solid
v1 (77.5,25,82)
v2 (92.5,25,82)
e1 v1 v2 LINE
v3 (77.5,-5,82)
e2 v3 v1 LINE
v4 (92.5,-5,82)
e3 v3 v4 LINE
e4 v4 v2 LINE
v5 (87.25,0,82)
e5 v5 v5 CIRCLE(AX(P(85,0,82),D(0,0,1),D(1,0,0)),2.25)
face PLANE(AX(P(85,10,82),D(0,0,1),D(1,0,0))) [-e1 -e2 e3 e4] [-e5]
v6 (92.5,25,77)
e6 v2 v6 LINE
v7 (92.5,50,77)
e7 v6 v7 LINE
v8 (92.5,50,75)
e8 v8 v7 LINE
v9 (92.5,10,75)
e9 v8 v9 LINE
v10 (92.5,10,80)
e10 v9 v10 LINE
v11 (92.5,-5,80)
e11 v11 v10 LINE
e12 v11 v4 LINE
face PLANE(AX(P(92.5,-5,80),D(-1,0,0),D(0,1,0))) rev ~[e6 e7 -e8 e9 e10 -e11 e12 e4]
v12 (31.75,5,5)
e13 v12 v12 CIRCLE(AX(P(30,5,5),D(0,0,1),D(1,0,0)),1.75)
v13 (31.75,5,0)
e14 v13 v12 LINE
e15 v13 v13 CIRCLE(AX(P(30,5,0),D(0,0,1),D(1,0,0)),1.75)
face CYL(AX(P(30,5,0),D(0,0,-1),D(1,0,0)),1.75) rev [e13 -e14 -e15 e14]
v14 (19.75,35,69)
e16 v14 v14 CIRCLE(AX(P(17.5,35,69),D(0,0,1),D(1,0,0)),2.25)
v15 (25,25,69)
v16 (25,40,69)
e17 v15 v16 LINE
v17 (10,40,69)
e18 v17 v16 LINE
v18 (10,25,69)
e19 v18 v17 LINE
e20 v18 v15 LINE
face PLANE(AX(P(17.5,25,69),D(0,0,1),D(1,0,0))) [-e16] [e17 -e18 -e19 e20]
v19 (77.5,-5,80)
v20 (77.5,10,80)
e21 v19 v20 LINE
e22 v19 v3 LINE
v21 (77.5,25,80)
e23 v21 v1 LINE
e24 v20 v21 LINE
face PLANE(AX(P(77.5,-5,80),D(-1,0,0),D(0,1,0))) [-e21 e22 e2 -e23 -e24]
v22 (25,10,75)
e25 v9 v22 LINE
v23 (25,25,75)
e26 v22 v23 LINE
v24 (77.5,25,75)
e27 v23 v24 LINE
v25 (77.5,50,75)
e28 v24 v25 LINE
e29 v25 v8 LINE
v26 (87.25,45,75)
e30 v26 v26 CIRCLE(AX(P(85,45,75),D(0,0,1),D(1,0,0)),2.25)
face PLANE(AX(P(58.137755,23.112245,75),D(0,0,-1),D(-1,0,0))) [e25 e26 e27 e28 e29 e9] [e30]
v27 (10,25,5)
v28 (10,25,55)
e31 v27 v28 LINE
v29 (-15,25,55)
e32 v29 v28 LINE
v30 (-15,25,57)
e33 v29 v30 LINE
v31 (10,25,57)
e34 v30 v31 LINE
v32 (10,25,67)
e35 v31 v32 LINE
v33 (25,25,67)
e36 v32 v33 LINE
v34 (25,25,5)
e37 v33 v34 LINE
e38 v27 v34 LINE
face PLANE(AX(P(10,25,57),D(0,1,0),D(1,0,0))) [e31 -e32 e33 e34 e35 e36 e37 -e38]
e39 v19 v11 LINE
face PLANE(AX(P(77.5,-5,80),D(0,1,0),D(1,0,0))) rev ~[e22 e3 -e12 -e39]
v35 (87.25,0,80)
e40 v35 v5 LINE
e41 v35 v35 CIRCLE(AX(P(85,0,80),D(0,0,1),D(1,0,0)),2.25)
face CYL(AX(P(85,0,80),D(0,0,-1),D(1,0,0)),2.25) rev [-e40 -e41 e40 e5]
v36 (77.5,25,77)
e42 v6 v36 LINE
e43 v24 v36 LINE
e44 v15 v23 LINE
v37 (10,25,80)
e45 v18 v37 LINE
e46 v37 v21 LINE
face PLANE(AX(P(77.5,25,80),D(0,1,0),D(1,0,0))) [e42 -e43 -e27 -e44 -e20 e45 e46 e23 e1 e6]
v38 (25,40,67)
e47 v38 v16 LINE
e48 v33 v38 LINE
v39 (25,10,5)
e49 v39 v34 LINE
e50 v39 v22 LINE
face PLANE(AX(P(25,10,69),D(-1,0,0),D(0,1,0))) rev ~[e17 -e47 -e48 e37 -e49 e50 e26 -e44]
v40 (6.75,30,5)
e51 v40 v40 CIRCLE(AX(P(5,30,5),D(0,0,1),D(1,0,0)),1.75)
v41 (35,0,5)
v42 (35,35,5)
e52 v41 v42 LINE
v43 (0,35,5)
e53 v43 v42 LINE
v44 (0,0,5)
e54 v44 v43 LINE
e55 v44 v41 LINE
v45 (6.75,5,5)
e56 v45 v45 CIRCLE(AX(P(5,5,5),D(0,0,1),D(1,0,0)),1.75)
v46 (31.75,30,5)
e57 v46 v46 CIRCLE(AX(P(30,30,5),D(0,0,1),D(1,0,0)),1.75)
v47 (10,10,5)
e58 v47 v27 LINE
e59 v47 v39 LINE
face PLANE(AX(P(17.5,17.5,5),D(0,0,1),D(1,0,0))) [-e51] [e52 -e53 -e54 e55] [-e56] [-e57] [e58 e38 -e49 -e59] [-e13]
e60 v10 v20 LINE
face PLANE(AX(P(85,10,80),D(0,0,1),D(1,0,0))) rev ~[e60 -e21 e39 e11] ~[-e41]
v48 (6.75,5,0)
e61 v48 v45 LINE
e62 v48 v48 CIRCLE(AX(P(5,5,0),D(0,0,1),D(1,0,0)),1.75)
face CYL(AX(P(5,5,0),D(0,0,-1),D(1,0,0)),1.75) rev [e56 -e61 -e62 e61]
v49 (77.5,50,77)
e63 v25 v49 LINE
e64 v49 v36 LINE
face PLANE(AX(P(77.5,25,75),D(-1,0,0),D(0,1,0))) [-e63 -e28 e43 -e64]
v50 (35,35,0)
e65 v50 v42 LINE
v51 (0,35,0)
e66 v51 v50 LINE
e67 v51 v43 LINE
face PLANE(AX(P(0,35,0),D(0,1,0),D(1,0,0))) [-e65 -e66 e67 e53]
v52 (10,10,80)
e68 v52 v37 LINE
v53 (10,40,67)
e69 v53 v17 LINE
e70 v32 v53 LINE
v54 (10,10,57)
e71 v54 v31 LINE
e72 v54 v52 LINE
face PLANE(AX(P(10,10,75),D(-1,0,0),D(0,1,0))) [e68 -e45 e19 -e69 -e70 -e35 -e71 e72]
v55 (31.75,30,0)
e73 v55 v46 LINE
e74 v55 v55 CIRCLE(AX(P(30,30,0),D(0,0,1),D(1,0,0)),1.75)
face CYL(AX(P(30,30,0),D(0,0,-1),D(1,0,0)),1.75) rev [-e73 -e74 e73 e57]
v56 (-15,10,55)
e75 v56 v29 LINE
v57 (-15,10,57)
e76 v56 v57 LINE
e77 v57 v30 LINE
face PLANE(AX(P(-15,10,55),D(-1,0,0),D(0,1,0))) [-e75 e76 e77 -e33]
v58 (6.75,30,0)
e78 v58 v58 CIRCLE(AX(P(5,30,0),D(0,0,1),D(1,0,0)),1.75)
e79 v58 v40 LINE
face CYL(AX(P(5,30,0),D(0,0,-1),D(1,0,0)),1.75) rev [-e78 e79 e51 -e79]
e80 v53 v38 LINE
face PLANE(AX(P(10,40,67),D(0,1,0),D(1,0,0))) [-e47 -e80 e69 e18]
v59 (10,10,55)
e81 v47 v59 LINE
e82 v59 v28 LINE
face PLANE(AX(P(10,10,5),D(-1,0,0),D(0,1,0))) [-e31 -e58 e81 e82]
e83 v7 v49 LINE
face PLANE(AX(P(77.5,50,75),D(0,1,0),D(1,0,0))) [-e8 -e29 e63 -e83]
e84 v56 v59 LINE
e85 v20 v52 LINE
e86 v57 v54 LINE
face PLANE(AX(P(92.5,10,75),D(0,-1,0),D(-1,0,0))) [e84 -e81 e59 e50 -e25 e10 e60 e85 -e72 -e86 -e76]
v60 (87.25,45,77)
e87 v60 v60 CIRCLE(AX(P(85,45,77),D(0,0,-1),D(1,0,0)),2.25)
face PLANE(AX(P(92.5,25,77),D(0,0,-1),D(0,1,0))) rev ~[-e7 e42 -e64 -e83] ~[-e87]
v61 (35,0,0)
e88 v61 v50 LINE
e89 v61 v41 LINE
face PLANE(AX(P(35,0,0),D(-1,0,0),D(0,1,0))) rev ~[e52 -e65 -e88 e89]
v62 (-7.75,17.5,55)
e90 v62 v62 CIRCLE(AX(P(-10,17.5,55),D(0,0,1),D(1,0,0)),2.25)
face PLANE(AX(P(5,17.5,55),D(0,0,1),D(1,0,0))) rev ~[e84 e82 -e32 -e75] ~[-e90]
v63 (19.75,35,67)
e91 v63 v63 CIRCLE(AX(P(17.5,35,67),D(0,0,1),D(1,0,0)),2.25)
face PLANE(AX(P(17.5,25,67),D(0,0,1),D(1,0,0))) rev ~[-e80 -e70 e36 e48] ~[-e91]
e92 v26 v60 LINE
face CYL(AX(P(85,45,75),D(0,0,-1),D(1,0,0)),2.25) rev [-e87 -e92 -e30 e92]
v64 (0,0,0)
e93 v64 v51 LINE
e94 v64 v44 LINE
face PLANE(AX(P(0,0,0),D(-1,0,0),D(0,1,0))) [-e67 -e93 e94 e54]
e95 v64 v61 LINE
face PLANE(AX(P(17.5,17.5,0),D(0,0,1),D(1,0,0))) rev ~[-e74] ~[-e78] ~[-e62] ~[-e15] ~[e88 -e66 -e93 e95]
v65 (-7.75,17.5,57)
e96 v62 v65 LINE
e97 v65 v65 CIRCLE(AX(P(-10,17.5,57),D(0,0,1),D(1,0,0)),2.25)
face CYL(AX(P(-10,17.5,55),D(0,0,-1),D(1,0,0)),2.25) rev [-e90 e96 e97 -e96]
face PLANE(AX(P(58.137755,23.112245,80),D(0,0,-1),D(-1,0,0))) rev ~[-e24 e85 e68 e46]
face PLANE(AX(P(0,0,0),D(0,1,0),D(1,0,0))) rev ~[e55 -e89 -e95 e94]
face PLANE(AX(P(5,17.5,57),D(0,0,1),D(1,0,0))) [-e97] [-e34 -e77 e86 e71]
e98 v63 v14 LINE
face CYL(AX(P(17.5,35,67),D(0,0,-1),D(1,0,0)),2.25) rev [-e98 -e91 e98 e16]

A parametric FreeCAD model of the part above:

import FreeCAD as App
import Part
import Sketcher


def add_polygon(sketch, points):
    """Adds a closed chain of lines whose ends are joined by coincident constraints."""
    first, n = sketch.GeometryCount, len(points)
    for a, b in zip(points, points[1:] + points[:1]):
        sketch.addGeometry(Part.LineSegment(App.Vector(*a, 0), App.Vector(*b, 0)), False)
    for i in range(n):
        sketch.addConstraint(Sketcher.Constraint("Coincident", first + i, 2, first + (i + 1) % n, 1))

doc = App.newDocument("Part")
body = doc.addObject("PartDesign::Body", "Body")

# Sketch on XY plane
sketch1 = body.newObject("Sketcher::SketchObject", "Sketch")
sketch1.AttachmentSupport = (doc.getObject("XY_Plane"), [""])
sketch1.MapMode = "FlatFace"
add_polygon(sketch1, [(0, 35), (0, 0), (35, 0), (35, 35)])  # lines 0-3
sketch1.addGeometry(Part.Circle(App.Vector(5, 5, 0), App.Vector(0, 0, 1), 1.8), False)  # 4
sketch1.addGeometry(Part.Circle(App.Vector(30, 5, 0), App.Vector(0, 0, 1), 1.8), False)  # 5
sketch1.addGeometry(Part.Circle(App.Vector(5, 30, 0), App.Vector(0, 0, 1), 1.8), False)  # 6
sketch1.addGeometry(Part.Circle(App.Vector(30, 30, 0), App.Vector(0, 0, 1), 1.8), False)  # 7
sketch1.addConstraint(Sketcher.Constraint("Vertical", 0))
sketch1.addConstraint(Sketcher.Constraint("Horizontal", 1))
sketch1.addConstraint(Sketcher.Constraint("Vertical", 2))
sketch1.addConstraint(Sketcher.Constraint("Horizontal", 3))
sketch1.addConstraint(Sketcher.Constraint("Coincident", 0, 2, -1, 1))
sketch1.addConstraint(Sketcher.Constraint("Equal", 4, 5))
sketch1.addConstraint(Sketcher.Constraint("Equal", 5, 6))
sketch1.addConstraint(Sketcher.Constraint("Equal", 6, 7))
sketch1.addConstraint(Sketcher.Constraint("Horizontal", 4, 3, 5, 3))
sketch1.addConstraint(Sketcher.Constraint("Horizontal", 6, 3, 7, 3))
sketch1.addConstraint(Sketcher.Constraint("Vertical", 4, 3, 6, 3))
sketch1.addConstraint(Sketcher.Constraint("Vertical", 5, 3, 7, 3))
sketch1.addConstraint(Sketcher.Constraint("Equal", 3, 0))
sketch1.addConstraint(Sketcher.Constraint("Diameter", 4, 3.5))
sketch1.addConstraint(Sketcher.Constraint("DistanceX", 1, 1, 1, 2, 35.0))
sketch1.addConstraint(Sketcher.Constraint("DistanceX", -1, 1, 4, 3, 5.0))
sketch1.addConstraint(Sketcher.Constraint("DistanceY", -1, 1, 4, 3, 5.0))
sketch1.addConstraint(Sketcher.Constraint("DistanceX", -1, 1, 5, 3, 30.0))
sketch1.addConstraint(Sketcher.Constraint("DistanceY", -1, 1, 6, 3, 30.0))
pad1 = body.newObject("PartDesign::Pad", "Pad")
pad1.Profile = sketch1
pad1.Length = 5

# Sketch on XY plane
sketch2 = body.newObject("Sketcher::SketchObject", "Sketch001")
sketch2.AttachmentSupport = (doc.getObject("XY_Plane"), [""])
sketch2.MapMode = "FlatFace"
sketch2.AttachmentOffset = App.Placement(App.Vector(0, 0, 5), App.Rotation())
add_polygon(sketch2, [(10, 25), (10, 10), (25, 10), (25, 25)])  # lines 0-3
sketch2.addConstraint(Sketcher.Constraint("Vertical", 0))
sketch2.addConstraint(Sketcher.Constraint("Horizontal", 1))
sketch2.addConstraint(Sketcher.Constraint("Vertical", 2))
sketch2.addConstraint(Sketcher.Constraint("Horizontal", 3))
sketch2.addConstraint(Sketcher.Constraint("Equal", 3, 0))
sketch2.addConstraint(Sketcher.Constraint("DistanceX", 1, 1, 1, 2, 15.0))
sketch2.addConstraint(Sketcher.Constraint("DistanceX", -1, 1, 0, 2, 10.0))
sketch2.addConstraint(Sketcher.Constraint("DistanceY", -1, 1, 0, 2, 10.0))
pad2 = body.newObject("PartDesign::Pad", "Pad001")
pad2.Profile = sketch2
pad2.Length = 50

# Sketch on XY plane
sketch3 = body.newObject("Sketcher::SketchObject", "Sketch002")
sketch3.AttachmentSupport = (doc.getObject("XY_Plane"), [""])
sketch3.MapMode = "FlatFace"
sketch3.AttachmentOffset = App.Placement(App.Vector(0, 0, 55), App.Rotation())
add_polygon(sketch3, [(-15, 25), (-15, 10), (25, 10), (25, 25)])  # lines 0-3
sketch3.addGeometry(Part.Circle(App.Vector(-10, 17.5, 0), App.Vector(0, 0, 1), 2.2), False)  # 4
sketch3.addConstraint(Sketcher.Constraint("Vertical", 0))
sketch3.addConstraint(Sketcher.Constraint("Horizontal", 1))
sketch3.addConstraint(Sketcher.Constraint("Vertical", 2))
sketch3.addConstraint(Sketcher.Constraint("Horizontal", 3))
sketch3.addConstraint(Sketcher.Constraint("Diameter", 4, 4.5))
sketch3.addConstraint(Sketcher.Constraint("DistanceX", 1, 1, 1, 2, 40.0))
sketch3.addConstraint(Sketcher.Constraint("DistanceY", 0, 2, 0, 1, 15.0))
sketch3.addConstraint(Sketcher.Constraint("DistanceX", 4, 3, -1, 1, 10.0))
sketch3.addConstraint(Sketcher.Constraint("DistanceX", 0, 2, -1, 1, 15.0))
sketch3.addConstraint(Sketcher.Constraint("DistanceY", -1, 1, 0, 2, 10.0))
sketch3.addConstraint(Sketcher.Constraint("DistanceY", -1, 1, 4, 3, 17.5))
pad3 = body.newObject("PartDesign::Pad", "Pad002")
pad3.Profile = sketch3
pad3.Length = 2

# Sketch on XY plane
sketch4 = body.newObject("Sketcher::SketchObject", "Sketch003")
sketch4.AttachmentSupport = (doc.getObject("XY_Plane"), [""])
sketch4.MapMode = "FlatFace"
sketch4.AttachmentOffset = App.Placement(App.Vector(0, 0, 57), App.Rotation())
add_polygon(sketch4, [(10, 25), (10, 10), (25, 10), (25, 25)])  # lines 0-3
sketch4.addConstraint(Sketcher.Constraint("Vertical", 0))
sketch4.addConstraint(Sketcher.Constraint("Horizontal", 1))
sketch4.addConstraint(Sketcher.Constraint("Vertical", 2))
sketch4.addConstraint(Sketcher.Constraint("Horizontal", 3))
sketch4.addConstraint(Sketcher.Constraint("Equal", 3, 0))
sketch4.addConstraint(Sketcher.Constraint("DistanceX", 1, 1, 1, 2, 15.0))
sketch4.addConstraint(Sketcher.Constraint("DistanceX", -1, 1, 0, 2, 10.0))
sketch4.addConstraint(Sketcher.Constraint("DistanceY", -1, 1, 0, 2, 10.0))
pad4 = body.newObject("PartDesign::Pad", "Pad003")
pad4.Profile = sketch4
pad4.Length = 10

# Sketch on XY plane
sketch5 = body.newObject("Sketcher::SketchObject", "Sketch004")
sketch5.AttachmentSupport = (doc.getObject("XY_Plane"), [""])
sketch5.MapMode = "FlatFace"
sketch5.AttachmentOffset = App.Placement(App.Vector(0, 0, 67), App.Rotation())
add_polygon(sketch5, [(10, 40), (10, 10), (25, 10), (25, 40)])  # lines 0-3
sketch5.addGeometry(Part.Circle(App.Vector(17.5, 35, 0), App.Vector(0, 0, 1), 2.2), False)  # 4
sketch5.addConstraint(Sketcher.Constraint("Vertical", 0))
sketch5.addConstraint(Sketcher.Constraint("Horizontal", 1))
sketch5.addConstraint(Sketcher.Constraint("Vertical", 2))
sketch5.addConstraint(Sketcher.Constraint("Horizontal", 3))
sketch5.addConstraint(Sketcher.Constraint("Diameter", 4, 4.5))
sketch5.addConstraint(Sketcher.Constraint("DistanceX", 1, 1, 1, 2, 15.0))
sketch5.addConstraint(Sketcher.Constraint("DistanceY", 0, 2, 0, 1, 30.0))
sketch5.addConstraint(Sketcher.Constraint("DistanceY", -1, 1, 4, 3, 35.0))
sketch5.addConstraint(Sketcher.Constraint("DistanceX", -1, 1, 0, 2, 10.0))
sketch5.addConstraint(Sketcher.Constraint("DistanceY", -1, 1, 0, 2, 10.0))
sketch5.addConstraint(Sketcher.Constraint("DistanceX", -1, 1, 4, 3, 17.5))
pad5 = body.newObject("PartDesign::Pad", "Pad004")
pad5.Profile = sketch5
pad5.Length = 2

# Sketch on XY plane
sketch6 = body.newObject("Sketcher::SketchObject", "Sketch005")
sketch6.AttachmentSupport = (doc.getObject("XY_Plane"), [""])
sketch6.MapMode = "FlatFace"
sketch6.AttachmentOffset = App.Placement(App.Vector(0, 0, 69), App.Rotation())
add_polygon(sketch6, [(10, 25), (10, 10), (25, 10), (25, 25)])  # lines 0-3
sketch6.addConstraint(Sketcher.Constraint("Vertical", 0))
sketch6.addConstraint(Sketcher.Constraint("Horizontal", 1))
sketch6.addConstraint(Sketcher.Constraint("Vertical", 2))
sketch6.addConstraint(Sketcher.Constraint("Horizontal", 3))
sketch6.addConstraint(Sketcher.Constraint("Equal", 3, 0))
sketch6.addConstraint(Sketcher.Constraint("DistanceX", 1, 1, 1, 2, 15.0))
sketch6.addConstraint(Sketcher.Constraint("DistanceX", -1, 1, 0, 2, 10.0))
sketch6.addConstraint(Sketcher.Constraint("DistanceY", -1, 1, 0, 2, 10.0))
pad6 = body.newObject("PartDesign::Pad", "Pad005")
pad6.Profile = sketch6
pad6.Length = 6

# Sketch on XY plane
sketch7 = body.newObject("Sketcher::SketchObject", "Sketch006")
sketch7.AttachmentSupport = (doc.getObject("XY_Plane"), [""])
sketch7.MapMode = "FlatFace"
sketch7.AttachmentOffset = App.Placement(App.Vector(0, 0, 75), App.Rotation())
add_polygon(sketch7, [(77.5, 25), (10, 25), (10, 10), (92.5, 10), (92.5, 50), (77.5, 50)])  # lines 0-5
sketch7.addGeometry(Part.Circle(App.Vector(85, 45, 0), App.Vector(0, 0, 1), 2.2), False)  # 6
sketch7.addConstraint(Sketcher.Constraint("Horizontal", 0))
sketch7.addConstraint(Sketcher.Constraint("Vertical", 1))
sketch7.addConstraint(Sketcher.Constraint("Horizontal", 2))
sketch7.addConstraint(Sketcher.Constraint("Vertical", 3))
sketch7.addConstraint(Sketcher.Constraint("Horizontal", 4))
sketch7.addConstraint(Sketcher.Constraint("Vertical", 5))
sketch7.addConstraint(Sketcher.Constraint("Equal", 4, 1))
sketch7.addConstraint(Sketcher.Constraint("Diameter", 6, 4.5))
sketch7.addConstraint(Sketcher.Constraint("DistanceX", 4, 2, 4, 1, 15.0))
sketch7.addConstraint(Sketcher.Constraint("DistanceY", 3, 1, 3, 2, 40.0))
sketch7.addConstraint(Sketcher.Constraint("DistanceX", 0, 2, 0, 1, 67.5))
sketch7.addConstraint(Sketcher.Constraint("DistanceX", -1, 1, 6, 3, 85.0))
sketch7.addConstraint(Sketcher.Constraint("DistanceY", -1, 1, 6, 3, 45.0))
sketch7.addConstraint(Sketcher.Constraint("DistanceX", -1, 1, 0, 2, 10.0))
sketch7.addConstraint(Sketcher.Constraint("DistanceY", -1, 1, 0, 2, 25.0))
pad7 = body.newObject("PartDesign::Pad", "Pad006")
pad7.Profile = sketch7
pad7.Length = 5

# Sketch on XY plane
sketch8 = body.newObject("Sketcher::SketchObject", "Sketch007")
sketch8.AttachmentSupport = (doc.getObject("XY_Plane"), [""])
sketch8.MapMode = "FlatFace"
sketch8.AttachmentOffset = App.Placement(App.Vector(0, 0, 80), App.Rotation())
add_polygon(sketch8, [(77.5, 25), (77.5, -5), (92.5, -5), (92.5, 25)])  # lines 0-3
sketch8.addGeometry(Part.Circle(App.Vector(85, 0, 0), App.Vector(0, 0, 1), 2.2), False)  # 4
sketch8.addConstraint(Sketcher.Constraint("Vertical", 0))
sketch8.addConstraint(Sketcher.Constraint("Horizontal", 1))
sketch8.addConstraint(Sketcher.Constraint("Vertical", 2))
sketch8.addConstraint(Sketcher.Constraint("Horizontal", 3))
sketch8.addConstraint(Sketcher.Constraint("PointOnObject", 4, 3, -1))
sketch8.addConstraint(Sketcher.Constraint("Diameter", 4, 4.5))
sketch8.addConstraint(Sketcher.Constraint("DistanceX", 1, 1, 1, 2, 15.0))
sketch8.addConstraint(Sketcher.Constraint("DistanceY", 0, 2, 0, 1, 30.0))
sketch8.addConstraint(Sketcher.Constraint("DistanceX", -1, 1, 4, 3, 85.0))
sketch8.addConstraint(Sketcher.Constraint("DistanceY", 0, 2, -1, 1, 5.0))
sketch8.addConstraint(Sketcher.Constraint("DistanceX", -1, 1, 0, 2, 77.5))
pad8 = body.newObject("PartDesign::Pad", "Pad007")
pad8.Profile = sketch8
pad8.Length = 2

# Sketch on YZ plane
sketch9 = body.newObject("Sketcher::SketchObject", "Sketch008")
sketch9.AttachmentSupport = (doc.getObject("YZ_Plane"), [""])
sketch9.MapMode = "FlatFace"
sketch9.AttachmentOffset = App.Placement(App.Vector(0, 0, 92.5), App.Rotation())
add_polygon(sketch9, [(25, 80), (25, 77), (50, 77), (50, 80)])  # lines 0-3
sketch9.addConstraint(Sketcher.Constraint("Vertical", 0))
sketch9.addConstraint(Sketcher.Constraint("Horizontal", 1))
sketch9.addConstraint(Sketcher.Constraint("Vertical", 2))
sketch9.addConstraint(Sketcher.Constraint("Horizontal", 3))
sketch9.addConstraint(Sketcher.Constraint("DistanceX", 1, 1, 1, 2, 25.0))
sketch9.addConstraint(Sketcher.Constraint("DistanceY", 0, 2, 0, 1, 3.0))
sketch9.addConstraint(Sketcher.Constraint("DistanceX", -1, 1, 0, 2, 25.0))
sketch9.addConstraint(Sketcher.Constraint("DistanceY", -1, 1, 0, 2, 77.0))
pocket1 = body.newObject("PartDesign::Pocket", "Pocket")
pocket1.Profile = sketch9
pocket1.Length = 25

doc.recompute()
